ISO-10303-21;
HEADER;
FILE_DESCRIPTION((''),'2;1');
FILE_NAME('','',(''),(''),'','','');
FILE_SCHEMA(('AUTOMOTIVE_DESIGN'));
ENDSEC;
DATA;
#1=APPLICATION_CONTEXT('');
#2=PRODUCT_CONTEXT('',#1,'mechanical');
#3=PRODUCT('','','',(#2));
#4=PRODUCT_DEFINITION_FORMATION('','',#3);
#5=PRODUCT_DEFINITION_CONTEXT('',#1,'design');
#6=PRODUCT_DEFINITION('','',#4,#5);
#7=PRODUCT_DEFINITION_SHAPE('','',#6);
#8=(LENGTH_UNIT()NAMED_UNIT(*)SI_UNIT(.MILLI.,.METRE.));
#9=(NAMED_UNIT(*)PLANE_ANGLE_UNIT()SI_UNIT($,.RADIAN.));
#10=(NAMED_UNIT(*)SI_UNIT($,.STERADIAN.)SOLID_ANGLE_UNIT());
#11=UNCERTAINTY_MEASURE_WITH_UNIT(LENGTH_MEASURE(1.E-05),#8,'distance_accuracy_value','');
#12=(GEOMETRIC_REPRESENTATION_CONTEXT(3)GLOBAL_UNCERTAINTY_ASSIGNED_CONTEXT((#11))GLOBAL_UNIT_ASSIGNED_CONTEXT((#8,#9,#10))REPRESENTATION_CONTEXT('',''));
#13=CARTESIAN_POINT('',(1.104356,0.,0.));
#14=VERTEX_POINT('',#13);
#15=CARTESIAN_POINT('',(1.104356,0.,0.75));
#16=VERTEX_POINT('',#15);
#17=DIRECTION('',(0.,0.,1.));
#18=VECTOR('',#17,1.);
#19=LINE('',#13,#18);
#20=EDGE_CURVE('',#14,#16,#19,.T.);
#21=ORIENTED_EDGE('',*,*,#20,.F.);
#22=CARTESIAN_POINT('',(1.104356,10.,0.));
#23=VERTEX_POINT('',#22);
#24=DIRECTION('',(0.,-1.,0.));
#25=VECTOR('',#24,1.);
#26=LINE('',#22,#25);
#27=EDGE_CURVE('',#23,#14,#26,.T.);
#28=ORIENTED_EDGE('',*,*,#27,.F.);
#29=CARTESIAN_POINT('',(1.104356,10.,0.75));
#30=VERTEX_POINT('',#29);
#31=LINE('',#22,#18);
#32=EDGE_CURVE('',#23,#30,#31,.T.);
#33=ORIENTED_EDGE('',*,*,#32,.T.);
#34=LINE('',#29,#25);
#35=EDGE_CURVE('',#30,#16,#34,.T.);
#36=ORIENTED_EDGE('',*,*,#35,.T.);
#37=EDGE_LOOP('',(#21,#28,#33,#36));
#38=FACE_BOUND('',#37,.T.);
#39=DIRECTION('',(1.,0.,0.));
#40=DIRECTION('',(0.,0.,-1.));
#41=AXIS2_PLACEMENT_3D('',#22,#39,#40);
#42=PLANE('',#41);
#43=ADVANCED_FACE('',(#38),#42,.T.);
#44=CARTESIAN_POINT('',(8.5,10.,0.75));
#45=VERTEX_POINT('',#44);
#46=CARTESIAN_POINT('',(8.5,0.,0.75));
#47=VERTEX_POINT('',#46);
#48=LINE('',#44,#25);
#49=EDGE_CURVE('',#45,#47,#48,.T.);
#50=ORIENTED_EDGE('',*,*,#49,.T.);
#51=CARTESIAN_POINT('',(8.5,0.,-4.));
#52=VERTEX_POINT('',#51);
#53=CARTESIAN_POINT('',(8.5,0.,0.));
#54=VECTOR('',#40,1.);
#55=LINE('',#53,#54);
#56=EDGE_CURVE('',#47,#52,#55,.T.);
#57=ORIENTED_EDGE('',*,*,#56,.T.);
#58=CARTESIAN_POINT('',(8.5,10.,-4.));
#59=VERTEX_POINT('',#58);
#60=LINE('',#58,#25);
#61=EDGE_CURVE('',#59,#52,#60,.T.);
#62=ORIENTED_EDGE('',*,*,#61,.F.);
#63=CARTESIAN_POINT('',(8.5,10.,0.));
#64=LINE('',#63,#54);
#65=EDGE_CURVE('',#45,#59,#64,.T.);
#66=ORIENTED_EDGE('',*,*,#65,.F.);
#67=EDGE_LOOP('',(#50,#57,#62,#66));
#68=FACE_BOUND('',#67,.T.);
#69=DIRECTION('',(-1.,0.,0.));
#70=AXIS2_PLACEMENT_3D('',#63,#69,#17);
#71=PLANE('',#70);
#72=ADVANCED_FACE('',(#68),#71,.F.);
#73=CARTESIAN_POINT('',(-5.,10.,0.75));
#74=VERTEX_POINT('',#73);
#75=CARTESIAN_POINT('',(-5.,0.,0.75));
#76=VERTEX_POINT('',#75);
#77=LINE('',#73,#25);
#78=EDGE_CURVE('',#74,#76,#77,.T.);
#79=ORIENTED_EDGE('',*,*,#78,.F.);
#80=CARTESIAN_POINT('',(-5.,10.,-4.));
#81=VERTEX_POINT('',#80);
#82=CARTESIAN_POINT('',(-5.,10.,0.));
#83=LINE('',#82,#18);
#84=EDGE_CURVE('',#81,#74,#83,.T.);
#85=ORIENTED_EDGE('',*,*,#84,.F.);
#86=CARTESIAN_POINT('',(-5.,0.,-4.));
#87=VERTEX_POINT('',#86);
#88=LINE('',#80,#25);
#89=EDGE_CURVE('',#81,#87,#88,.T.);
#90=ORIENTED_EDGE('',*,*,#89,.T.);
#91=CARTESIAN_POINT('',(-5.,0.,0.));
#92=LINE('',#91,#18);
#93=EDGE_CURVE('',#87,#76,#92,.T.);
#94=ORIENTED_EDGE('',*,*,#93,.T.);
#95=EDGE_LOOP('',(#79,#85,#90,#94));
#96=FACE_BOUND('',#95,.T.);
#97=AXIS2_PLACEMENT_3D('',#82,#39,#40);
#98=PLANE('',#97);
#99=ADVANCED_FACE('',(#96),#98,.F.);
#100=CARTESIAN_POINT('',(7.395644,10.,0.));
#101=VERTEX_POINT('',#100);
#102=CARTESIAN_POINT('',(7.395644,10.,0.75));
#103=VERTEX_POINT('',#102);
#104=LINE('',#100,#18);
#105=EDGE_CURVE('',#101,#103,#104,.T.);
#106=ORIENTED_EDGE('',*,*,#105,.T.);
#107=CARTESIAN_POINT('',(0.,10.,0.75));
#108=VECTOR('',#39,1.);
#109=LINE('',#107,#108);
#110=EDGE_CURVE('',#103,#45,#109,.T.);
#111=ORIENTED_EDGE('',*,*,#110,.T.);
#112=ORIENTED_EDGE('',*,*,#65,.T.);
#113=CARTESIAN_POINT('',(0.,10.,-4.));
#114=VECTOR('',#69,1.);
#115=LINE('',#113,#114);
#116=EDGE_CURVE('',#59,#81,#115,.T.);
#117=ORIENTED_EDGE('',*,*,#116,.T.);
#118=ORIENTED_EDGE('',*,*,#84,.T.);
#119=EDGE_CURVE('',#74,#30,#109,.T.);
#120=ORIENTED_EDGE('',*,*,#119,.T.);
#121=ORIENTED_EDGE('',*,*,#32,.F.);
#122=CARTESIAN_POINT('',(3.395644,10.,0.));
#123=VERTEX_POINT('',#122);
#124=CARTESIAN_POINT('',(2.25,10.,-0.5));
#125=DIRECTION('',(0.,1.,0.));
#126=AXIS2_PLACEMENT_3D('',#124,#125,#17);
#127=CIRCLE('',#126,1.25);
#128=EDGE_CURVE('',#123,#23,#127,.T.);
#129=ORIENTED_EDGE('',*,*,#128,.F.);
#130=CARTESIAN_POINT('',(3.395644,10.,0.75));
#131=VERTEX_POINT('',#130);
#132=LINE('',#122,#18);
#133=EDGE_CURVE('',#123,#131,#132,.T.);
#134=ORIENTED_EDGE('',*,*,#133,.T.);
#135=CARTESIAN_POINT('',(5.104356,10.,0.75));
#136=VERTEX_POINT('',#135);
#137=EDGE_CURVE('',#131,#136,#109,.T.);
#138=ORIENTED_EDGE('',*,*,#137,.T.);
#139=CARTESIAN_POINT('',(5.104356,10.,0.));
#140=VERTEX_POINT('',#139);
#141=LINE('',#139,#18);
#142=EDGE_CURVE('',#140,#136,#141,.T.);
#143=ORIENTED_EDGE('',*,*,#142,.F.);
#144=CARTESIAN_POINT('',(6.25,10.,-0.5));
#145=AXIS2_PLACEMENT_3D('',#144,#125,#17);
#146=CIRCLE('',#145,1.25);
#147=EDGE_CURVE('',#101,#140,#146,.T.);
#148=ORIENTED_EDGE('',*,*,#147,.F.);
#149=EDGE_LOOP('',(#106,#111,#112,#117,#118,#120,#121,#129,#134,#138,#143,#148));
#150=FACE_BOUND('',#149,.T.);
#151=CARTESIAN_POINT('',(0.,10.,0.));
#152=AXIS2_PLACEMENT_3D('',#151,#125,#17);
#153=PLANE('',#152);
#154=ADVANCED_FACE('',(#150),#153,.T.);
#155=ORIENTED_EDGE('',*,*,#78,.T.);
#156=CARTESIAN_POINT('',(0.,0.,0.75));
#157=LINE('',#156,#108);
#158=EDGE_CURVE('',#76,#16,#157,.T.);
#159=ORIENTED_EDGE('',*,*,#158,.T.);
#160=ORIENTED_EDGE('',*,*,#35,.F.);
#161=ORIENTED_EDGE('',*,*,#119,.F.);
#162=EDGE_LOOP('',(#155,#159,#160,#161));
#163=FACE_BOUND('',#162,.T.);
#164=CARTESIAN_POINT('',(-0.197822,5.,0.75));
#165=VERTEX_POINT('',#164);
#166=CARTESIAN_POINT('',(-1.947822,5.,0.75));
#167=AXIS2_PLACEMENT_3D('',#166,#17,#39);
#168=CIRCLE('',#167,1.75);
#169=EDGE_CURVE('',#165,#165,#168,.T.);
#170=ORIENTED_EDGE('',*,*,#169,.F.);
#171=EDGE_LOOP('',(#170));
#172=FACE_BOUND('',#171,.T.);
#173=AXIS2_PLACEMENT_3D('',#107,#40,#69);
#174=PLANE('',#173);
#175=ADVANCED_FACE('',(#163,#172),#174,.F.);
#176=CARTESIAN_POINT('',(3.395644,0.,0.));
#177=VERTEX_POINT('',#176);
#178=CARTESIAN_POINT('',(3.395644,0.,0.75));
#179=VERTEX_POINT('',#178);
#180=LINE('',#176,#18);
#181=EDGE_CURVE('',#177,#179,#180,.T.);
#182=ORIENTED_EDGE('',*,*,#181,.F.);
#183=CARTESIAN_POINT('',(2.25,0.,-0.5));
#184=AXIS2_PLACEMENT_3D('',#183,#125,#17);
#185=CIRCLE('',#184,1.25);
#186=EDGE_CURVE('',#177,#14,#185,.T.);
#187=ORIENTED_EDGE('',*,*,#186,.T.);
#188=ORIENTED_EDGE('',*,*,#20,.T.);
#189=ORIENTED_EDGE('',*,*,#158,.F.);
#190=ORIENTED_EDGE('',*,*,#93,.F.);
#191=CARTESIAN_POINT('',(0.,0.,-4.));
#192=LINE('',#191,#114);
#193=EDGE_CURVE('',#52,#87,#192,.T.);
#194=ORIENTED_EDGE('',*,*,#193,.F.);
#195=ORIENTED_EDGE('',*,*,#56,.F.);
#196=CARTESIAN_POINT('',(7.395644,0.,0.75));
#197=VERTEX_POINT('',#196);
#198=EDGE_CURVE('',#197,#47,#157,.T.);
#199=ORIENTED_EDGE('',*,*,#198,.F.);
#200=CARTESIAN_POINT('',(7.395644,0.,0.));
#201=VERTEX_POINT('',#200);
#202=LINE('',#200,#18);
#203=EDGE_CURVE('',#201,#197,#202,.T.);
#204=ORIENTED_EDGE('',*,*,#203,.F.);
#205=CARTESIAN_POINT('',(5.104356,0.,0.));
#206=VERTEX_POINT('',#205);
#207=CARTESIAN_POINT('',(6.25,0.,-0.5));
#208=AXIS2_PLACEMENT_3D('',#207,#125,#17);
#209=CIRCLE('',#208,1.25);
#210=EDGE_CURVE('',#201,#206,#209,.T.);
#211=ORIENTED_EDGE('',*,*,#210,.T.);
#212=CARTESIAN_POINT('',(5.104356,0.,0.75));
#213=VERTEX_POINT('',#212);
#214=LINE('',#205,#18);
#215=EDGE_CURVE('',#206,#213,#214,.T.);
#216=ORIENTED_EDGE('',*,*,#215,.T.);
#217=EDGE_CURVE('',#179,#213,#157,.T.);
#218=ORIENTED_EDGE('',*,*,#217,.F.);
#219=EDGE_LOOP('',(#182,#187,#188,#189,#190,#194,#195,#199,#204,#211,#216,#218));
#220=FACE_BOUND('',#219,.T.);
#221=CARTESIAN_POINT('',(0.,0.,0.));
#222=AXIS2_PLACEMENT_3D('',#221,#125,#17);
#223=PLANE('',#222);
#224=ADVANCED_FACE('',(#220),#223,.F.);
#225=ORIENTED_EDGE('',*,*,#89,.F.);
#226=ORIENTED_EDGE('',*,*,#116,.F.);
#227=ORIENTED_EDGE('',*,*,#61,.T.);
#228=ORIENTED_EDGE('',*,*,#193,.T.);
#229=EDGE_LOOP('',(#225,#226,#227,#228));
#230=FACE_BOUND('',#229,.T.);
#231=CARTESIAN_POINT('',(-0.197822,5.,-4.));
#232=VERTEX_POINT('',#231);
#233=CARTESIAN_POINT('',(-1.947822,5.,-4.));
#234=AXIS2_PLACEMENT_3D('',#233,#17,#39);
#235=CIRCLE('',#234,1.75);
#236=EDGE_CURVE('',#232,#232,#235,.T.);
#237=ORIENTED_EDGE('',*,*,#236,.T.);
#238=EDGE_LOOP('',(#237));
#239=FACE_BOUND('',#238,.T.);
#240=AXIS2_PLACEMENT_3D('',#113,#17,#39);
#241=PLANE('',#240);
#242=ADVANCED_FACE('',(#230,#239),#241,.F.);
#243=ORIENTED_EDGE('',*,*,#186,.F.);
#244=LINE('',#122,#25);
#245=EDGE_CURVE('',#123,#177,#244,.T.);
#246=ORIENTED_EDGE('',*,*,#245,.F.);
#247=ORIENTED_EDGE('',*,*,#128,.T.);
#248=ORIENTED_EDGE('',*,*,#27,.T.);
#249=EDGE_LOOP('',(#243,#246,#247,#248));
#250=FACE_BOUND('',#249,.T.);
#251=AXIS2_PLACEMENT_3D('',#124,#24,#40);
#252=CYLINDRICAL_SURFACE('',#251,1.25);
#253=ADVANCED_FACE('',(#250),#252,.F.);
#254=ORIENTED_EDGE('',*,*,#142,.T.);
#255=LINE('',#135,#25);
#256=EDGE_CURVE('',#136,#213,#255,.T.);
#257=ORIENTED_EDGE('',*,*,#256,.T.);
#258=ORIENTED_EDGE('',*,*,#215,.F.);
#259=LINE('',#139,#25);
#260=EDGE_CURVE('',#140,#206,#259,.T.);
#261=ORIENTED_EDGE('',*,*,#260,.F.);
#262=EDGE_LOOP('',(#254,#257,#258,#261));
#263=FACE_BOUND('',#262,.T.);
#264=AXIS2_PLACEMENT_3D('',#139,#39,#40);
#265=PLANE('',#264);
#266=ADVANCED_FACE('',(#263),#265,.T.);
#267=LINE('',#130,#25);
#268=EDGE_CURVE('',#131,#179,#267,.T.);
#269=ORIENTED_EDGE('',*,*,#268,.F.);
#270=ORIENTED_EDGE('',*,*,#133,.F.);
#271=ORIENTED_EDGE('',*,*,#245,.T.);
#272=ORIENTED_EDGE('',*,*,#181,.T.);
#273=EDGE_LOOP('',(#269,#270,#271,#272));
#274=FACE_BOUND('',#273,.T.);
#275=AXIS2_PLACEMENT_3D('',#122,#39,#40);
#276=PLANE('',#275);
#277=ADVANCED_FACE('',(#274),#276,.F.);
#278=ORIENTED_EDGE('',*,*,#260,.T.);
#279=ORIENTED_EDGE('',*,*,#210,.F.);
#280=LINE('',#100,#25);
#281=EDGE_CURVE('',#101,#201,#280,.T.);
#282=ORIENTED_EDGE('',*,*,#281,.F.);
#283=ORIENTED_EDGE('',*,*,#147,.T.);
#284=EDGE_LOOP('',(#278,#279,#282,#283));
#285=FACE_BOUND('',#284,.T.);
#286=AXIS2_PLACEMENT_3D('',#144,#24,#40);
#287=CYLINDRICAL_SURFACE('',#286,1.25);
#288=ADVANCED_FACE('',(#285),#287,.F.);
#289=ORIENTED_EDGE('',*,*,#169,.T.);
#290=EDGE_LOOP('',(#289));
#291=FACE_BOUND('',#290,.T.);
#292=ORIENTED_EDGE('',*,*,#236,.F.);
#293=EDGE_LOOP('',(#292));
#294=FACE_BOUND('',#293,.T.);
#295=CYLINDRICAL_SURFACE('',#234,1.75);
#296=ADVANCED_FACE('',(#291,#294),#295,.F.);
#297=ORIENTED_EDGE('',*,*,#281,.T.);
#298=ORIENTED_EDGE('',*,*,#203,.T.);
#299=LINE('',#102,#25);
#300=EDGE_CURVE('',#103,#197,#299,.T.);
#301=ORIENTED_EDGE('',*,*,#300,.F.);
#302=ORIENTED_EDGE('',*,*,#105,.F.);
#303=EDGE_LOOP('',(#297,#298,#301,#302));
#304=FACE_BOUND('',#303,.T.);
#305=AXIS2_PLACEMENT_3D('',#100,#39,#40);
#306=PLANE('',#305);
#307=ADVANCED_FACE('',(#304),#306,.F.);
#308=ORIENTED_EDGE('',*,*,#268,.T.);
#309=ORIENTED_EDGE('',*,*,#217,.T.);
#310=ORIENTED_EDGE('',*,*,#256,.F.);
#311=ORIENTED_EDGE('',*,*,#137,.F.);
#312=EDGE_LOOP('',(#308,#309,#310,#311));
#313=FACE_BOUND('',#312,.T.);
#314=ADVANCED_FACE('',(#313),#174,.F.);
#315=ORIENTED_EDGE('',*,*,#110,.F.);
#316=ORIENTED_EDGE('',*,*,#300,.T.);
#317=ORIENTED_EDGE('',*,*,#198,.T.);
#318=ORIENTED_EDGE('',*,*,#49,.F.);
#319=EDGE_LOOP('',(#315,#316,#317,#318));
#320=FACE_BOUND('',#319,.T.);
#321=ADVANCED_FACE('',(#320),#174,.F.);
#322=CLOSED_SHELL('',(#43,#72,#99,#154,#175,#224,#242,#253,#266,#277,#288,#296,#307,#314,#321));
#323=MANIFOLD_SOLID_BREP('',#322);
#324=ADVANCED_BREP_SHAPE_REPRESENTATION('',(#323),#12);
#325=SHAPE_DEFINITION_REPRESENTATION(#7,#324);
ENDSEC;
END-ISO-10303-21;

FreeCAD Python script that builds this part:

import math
import FreeCAD as App
import Part
import Sketcher
from FreeCAD import Vector

doc = App.newDocument("Part")
body = doc.addObject("PartDesign::Body", "Body")

# Sketch on XZ plane
sketch1 = doc.addObject("Sketcher::SketchObject", "Sketch")
body.addObject(sketch1)
sketch1.AttachmentSupport = (doc.XZ_Plane, [""])
sketch1.MapMode = "FlatFace"
sketch1.addGeometry([
    Part.LineSegment(Vector(8.5, -4, 0), Vector(-5, -4, 0)),  # 0
    Part.LineSegment(Vector(-5, -4, 0), Vector(-5, 0.8, 0)),  # 1
    Part.LineSegment(Vector(-5, 0.8, 0), Vector(1.1, 0.8, 0)),  # 2
    Part.LineSegment(Vector(1.1, 0.8, 0), Vector(1.1, 0, 0)),  # 3
    Part.ArcOfCircle(Part.Circle(Vector(2.2, -0.5, 0), Vector(0, 0, 1), 1.2), math.radians(156), math.radians(384)),  # 4
    Part.LineSegment(Vector(3.4, 0, 0), Vector(3.4, 0.8, 0)),  # 5
    Part.LineSegment(Vector(3.4, 0.8, 0), Vector(5.1, 0.8, 0)),  # 6
    Part.LineSegment(Vector(5.1, 0.8, 0), Vector(5.1, 0, 0)),  # 7
    Part.ArcOfCircle(Part.Circle(Vector(6.2, -0.5, 0), Vector(0, 0, 1), 1.2), math.radians(156), math.radians(384)),  # 8
    Part.LineSegment(Vector(7.4, 0, 0), Vector(7.4, 0.8, 0)),  # 9
    Part.LineSegment(Vector(7.4, 0.8, 0), Vector(8.5, 0.8, 0)),  # 10
    Part.LineSegment(Vector(8.5, 0.8, 0), Vector(8.5, -4, 0)),  # 11
], False)
sketch1.addConstraint([
    Sketcher.Constraint("Coincident", 0, 2, 1, 1),
    Sketcher.Constraint("Coincident", 1, 2, 2, 1),
    Sketcher.Constraint("Coincident", 2, 2, 3, 1),
    Sketcher.Constraint("Coincident", 3, 2, 4, 1),
    Sketcher.Constraint("Coincident", 4, 2, 5, 1),
    Sketcher.Constraint("Coincident", 5, 2, 6, 1),
    Sketcher.Constraint("Coincident", 6, 2, 7, 1),
    Sketcher.Constraint("Coincident", 7, 2, 8, 1),
    Sketcher.Constraint("Coincident", 8, 2, 9, 1),
    Sketcher.Constraint("Coincident", 9, 2, 10, 1),
    Sketcher.Constraint("Coincident", 10, 2, 11, 1),
    Sketcher.Constraint("Coincident", 11, 2, 0, 1),
    Sketcher.Constraint("Horizontal", 0),
    Sketcher.Constraint("Vertical", 1),
    Sketcher.Constraint("Horizontal", 2),
    Sketcher.Constraint("Vertical", 3),
    Sketcher.Constraint("Vertical", 5),
    Sketcher.Constraint("Horizontal", 6),
    Sketcher.Constraint("Vertical", 7),
    Sketcher.Constraint("Vertical", 9),
    Sketcher.Constraint("Horizontal", 10),
    Sketcher.Constraint("Vertical", 11),
    Sketcher.Constraint("Equal", 4, 8),
    Sketcher.Constraint("PointOnObject", 3, 2, -1),
    Sketcher.Constraint("PointOnObject", 4, 2, -1),
    Sketcher.Constraint("PointOnObject", 7, 2, -1),
    Sketcher.Constraint("PointOnObject", 8, 2, -1),
    Sketcher.Constraint("Horizontal", 4, 3, 8, 3),
    Sketcher.Constraint("Horizontal", 2, 2, 5, 2),
    Sketcher.Constraint("Horizontal", 6, 2, 9, 2),
    Sketcher.Constraint("Radius", 4, 1.25),
    Sketcher.Constraint("DistanceX", 0, 2, 0, 1, 13.5),
    Sketcher.Constraint("DistanceX", 0, 2, -1, 1, 5.0),
    Sketcher.Constraint("DistanceY", 0, 2, -1, 1, 4.0),
    Sketcher.Constraint("DistanceX", 4, 3, 8, 3, 4.0),
    Sketcher.Constraint("DistanceY", 1, 1, 1, 2, 4.75),
    Sketcher.Constraint("DistanceY", 4, 3, -1, 1, 0.5),
    Sketcher.Constraint("DistanceX", -1, 1, 4, 3, 2.25),
])
pad1 = doc.addObject("PartDesign::Pad", "Pad")
body.addObject(pad1)
pad1.Profile = sketch1
pad1.Length = 10
pad1.Reversed = True

# Sketch on XY plane
sketch2 = doc.addObject("Sketcher::SketchObject", "Sketch001")
body.addObject(sketch2)
sketch2.AttachmentSupport = (doc.XY_Plane, [""])
sketch2.MapMode = "FlatFace"
sketch2.AttachmentOffset = App.Placement(Vector(0, 0, 0.75), App.Rotation())
sketch2.addGeometry(Part.Circle(Vector(-1.9, 5, 0), Vector(0, 0, 1), 1.8), False)
sketch2.addConstraint([
    Sketcher.Constraint("Diameter", 0, 3.5),
    Sketcher.Constraint("DistanceY", -1, 1, 0, 3, 5.0),
    Sketcher.Constraint("DistanceX", 0, 3, -1, 1, 1.947822),
])
pocket1 = doc.addObject("PartDesign::Pocket", "Pocket")
body.addObject(pocket1)
pocket1.Profile = sketch2
pocket1.Type = "ThroughAll"

doc.recompute()
